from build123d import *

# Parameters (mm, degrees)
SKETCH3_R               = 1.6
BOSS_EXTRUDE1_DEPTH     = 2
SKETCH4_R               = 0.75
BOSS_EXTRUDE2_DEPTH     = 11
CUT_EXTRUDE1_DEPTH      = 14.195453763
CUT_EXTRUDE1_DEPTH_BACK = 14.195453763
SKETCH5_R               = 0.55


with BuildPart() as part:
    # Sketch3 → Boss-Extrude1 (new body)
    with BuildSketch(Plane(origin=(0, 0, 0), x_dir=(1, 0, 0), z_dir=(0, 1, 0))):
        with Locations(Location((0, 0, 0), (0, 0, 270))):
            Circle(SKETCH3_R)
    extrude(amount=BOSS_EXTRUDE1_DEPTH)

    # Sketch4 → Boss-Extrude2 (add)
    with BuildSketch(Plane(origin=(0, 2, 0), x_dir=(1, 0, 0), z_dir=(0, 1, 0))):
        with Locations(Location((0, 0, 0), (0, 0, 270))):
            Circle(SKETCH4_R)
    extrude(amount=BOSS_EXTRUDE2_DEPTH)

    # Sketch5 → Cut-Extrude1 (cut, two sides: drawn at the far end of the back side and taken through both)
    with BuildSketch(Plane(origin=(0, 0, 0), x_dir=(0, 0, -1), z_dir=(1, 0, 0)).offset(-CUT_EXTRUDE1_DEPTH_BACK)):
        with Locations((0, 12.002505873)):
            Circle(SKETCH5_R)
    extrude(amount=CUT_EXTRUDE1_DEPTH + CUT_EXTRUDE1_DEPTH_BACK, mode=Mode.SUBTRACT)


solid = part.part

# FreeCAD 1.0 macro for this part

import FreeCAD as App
import Part
import Sketcher

V = App.Vector
Q = App.Units.Quantity

doc = App.newDocument("Part")
body = doc.addObject("PartDesign::Body", "Body")

sketch1 = body.newObject("Sketcher::SketchObject", "Sketch")
sketch1.AttachmentSupport = (doc.getObject("XZ_Plane"), [""])
sketch1.MapMode = "FlatFace"
sketch1.addGeometry(Part.Circle(V(0, 0, 0), V(0, 0, 1), 1.6), False)
sketch1.addConstraint([
    Sketcher.Constraint("Coincident", 0, 3, -1, 1),
    Sketcher.Constraint("Diameter", 0, Q("3.2 mm")),
])
pad1 = body.newObject("PartDesign::Pad", "Pad")
pad1.Profile = sketch1
pad1.Length = 2
pad1.Reversed = True

sketch2 = body.newObject("Sketcher::SketchObject", "Sketch001")
sketch2.AttachmentSupport = (doc.getObject("XZ_Plane"), [""])
sketch2.MapMode = "FlatFace"
sketch2.AttachmentOffset = App.Placement(V(0, 0, -2), App.Rotation())
sketch2.addGeometry(Part.Circle(V(0, 0, 0), V(0, 0, 1), 0.75), False)
sketch2.addConstraint([
    Sketcher.Constraint("Coincident", 0, 3, -1, 1),
    Sketcher.Constraint("Diameter", 0, Q("1.5 mm")),
])
pad2 = body.newObject("PartDesign::Pad", "Pad001")
pad2.Profile = sketch2
pad2.Length = 11
pad2.Reversed = True

sketch3 = body.newObject("Sketcher::SketchObject", "Sketch002")
sketch3.AttachmentSupport = (doc.getObject("YZ_Plane"), [""])
sketch3.MapMode = "FlatFace"
sketch3.addGeometry(Part.Circle(V(12.002506, 0, 0), V(0, 0, 1), 0.55), False)
sketch3.addConstraint([
    Sketcher.Constraint("PointOnObject", 0, 3, -1),
    Sketcher.Constraint("Diameter", 0, Q("1.1 mm")),
    Sketcher.Constraint("DistanceX", -1, 1, 0, 3, Q("12.002506 mm")),
])
pocket1 = body.newObject("PartDesign::Pocket", "Pocket")
pocket1.Profile = sketch3
pocket1.Type = "ThroughAll"
pocket1.Midplane = True

doc.recompute()
